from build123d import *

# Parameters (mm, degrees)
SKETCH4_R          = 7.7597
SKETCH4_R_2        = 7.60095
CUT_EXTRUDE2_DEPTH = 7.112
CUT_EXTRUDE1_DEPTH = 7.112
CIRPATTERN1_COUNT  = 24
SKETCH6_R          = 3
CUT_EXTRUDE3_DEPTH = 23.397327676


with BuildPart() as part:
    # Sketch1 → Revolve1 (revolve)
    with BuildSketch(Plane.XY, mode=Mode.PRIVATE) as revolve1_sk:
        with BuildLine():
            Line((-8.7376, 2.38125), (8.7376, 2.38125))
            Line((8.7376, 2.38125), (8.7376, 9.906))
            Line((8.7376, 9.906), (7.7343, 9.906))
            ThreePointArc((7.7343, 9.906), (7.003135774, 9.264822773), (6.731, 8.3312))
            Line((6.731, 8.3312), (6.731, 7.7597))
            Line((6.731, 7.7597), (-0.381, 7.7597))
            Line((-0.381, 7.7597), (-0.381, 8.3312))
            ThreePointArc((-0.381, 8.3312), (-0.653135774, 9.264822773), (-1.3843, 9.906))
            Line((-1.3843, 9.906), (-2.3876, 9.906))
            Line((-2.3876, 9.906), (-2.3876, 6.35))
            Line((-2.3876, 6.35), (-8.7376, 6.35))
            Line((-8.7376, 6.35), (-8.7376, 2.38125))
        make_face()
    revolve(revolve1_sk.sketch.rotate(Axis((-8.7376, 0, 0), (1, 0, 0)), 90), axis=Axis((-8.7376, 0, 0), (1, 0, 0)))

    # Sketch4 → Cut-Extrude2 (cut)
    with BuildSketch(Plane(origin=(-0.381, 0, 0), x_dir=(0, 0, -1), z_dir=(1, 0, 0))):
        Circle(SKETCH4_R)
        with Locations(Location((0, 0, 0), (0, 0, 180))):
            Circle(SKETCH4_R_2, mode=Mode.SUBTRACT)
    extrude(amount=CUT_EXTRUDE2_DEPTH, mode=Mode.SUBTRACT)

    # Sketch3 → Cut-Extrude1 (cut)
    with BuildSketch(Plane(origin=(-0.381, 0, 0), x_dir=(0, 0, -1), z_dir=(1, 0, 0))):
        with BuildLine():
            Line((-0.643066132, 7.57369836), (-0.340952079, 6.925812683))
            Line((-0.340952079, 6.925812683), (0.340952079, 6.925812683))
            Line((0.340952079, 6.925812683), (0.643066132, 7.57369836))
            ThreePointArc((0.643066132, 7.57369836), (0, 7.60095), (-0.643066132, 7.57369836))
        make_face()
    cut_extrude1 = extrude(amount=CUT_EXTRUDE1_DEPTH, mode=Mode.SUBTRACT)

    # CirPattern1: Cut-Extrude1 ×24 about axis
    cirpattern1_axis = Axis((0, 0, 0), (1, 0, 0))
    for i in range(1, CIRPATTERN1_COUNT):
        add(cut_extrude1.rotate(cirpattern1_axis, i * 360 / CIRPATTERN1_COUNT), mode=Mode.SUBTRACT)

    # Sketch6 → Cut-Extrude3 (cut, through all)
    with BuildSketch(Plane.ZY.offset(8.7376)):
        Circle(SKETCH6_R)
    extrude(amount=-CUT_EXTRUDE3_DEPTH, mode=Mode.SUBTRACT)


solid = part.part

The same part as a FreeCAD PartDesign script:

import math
import FreeCAD as App
import Part
import Sketcher

V = App.Vector
Q = App.Units.Quantity

doc = App.newDocument("Part")
body = doc.addObject("PartDesign::Body", "Body")

# Sketch on XY plane
sketch1 = doc.addObject("Sketcher::SketchObject", "Sketch")
body.addObject(sketch1)
sketch1.AttachmentSupport = (doc.XY_Plane, [""])
sketch1.MapMode = "FlatFace"
sketch1.addGeometry([
    Part.LineSegment(V(-8.7, 2.4, 0), V(8.7, 2.4, 0)),  # 0
    Part.LineSegment(V(8.7, 2.4, 0), V(8.7, 9.9, 0)),  # 1
    Part.LineSegment(V(8.7, 9.9, 0), V(7.7, 9.9, 0)),  # 2
    Part.ArcOfCircle(Part.Circle(V(8.5, 8.3, 0), V(0, 0, 1), 1.7), math.radians(115), math.radians(180)),  # 3
    Part.LineSegment(V(6.7, 8.3, 0), V(6.7, 7.8, 0)),  # 4
    Part.LineSegment(V(6.7, 7.8, 0), V(-0.4, 7.8, 0)),  # 5
    Part.LineSegment(V(-0.4, 7.8, 0), V(-0.4, 8.3, 0)),  # 6
    Part.ArcOfCircle(Part.Circle(V(-2.1, 8.3, 0), V(0, 0, 1), 1.7), math.radians(0), math.radians(65)),  # 7
    Part.LineSegment(V(-1.4, 9.9, 0), V(-2.4, 9.9, 0)),  # 8
    Part.LineSegment(V(-2.4, 9.9, 0), V(-2.4, 6.3, 0)),  # 9
    Part.LineSegment(V(-2.4, 6.3, 0), V(-8.7, 6.3, 0)),  # 10
    Part.LineSegment(V(-8.7, 6.3, 0), V(-8.7, 2.4, 0)),  # 11
], False)
sketch1.addConstraint([
    Sketcher.Constraint("Coincident", 0, 2, 1, 1),
    Sketcher.Constraint("Coincident", 1, 2, 2, 1),
    Sketcher.Constraint("Coincident", 2, 2, 3, 1),
    Sketcher.Constraint("Tangent", 3, 2, 4, 1),
    Sketcher.Constraint("Coincident", 4, 2, 5, 1),
    Sketcher.Constraint("Coincident", 5, 2, 6, 1),
    Sketcher.Constraint("Tangent", 6, 2, 7, 1),
    Sketcher.Constraint("Coincident", 7, 2, 8, 1),
    Sketcher.Constraint("Coincident", 8, 2, 9, 1),
    Sketcher.Constraint("Coincident", 9, 2, 10, 1),
    Sketcher.Constraint("Coincident", 10, 2, 11, 1),
    Sketcher.Constraint("Coincident", 11, 2, 0, 1),
    Sketcher.Constraint("Horizontal", 0),
    Sketcher.Constraint("Vertical", 1),
    Sketcher.Constraint("Horizontal", 2),
    Sketcher.Constraint("Vertical", 4),
    Sketcher.Constraint("Horizontal", 5),
    Sketcher.Constraint("Vertical", 6),
    Sketcher.Constraint("Horizontal", 8),
    Sketcher.Constraint("Vertical", 9),
    Sketcher.Constraint("Horizontal", 10),
    Sketcher.Constraint("Vertical", 11),
    Sketcher.Constraint("Equal", 3, 7),
    Sketcher.Constraint("Horizontal", 3, 3, 7, 3),
    Sketcher.Constraint("Horizontal", 2, 2, 7, 2),
    Sketcher.Constraint("Equal", 2, 8),
    Sketcher.Constraint("DistanceX", 5, 2, 5, 1, Q("0.28 in")),
    Sketcher.Constraint("DistanceX", 10, 2, 10, 1, Q("0.25 in")),
    Sketcher.Constraint("DistanceY", 9, 2, 9, 1, Q("0.14 in")),
    Sketcher.Constraint("DistanceX", 0, 1, 0, 2, Q("0.688 in")),
    Sketcher.Constraint("DistanceY", 11, 2, 11, 1, Q("0.15625 in")),
    Sketcher.Constraint("DistanceY", -1, 1, 1, 2, Q("0.39 in")),
    Sketcher.Constraint("DistanceX", 2, 2, 2, 1, Q("0.0395 in")),
    Sketcher.Constraint("DistanceY", 4, 2, 4, 1, Q("0.0225 in")),
    Sketcher.Constraint("DistanceY", -1, 1, 3, 3, Q("0.328 in")),
    Sketcher.Constraint("DistanceX", -1, 1, 0, 2, Q("0.344 in")),
])
revolution = doc.addObject("PartDesign::Revolution", "Revolution")
body.addObject(revolution)
revolution.Profile = sketch1
revolution.ReferenceAxis = (sketch1, ["H_Axis"])
revolution.Angle = 360

# Sketch on YZ plane
sketch2 = doc.addObject("Sketcher::SketchObject", "Sketch001")
body.addObject(sketch2)
sketch2.AttachmentSupport = (doc.YZ_Plane, [""])
sketch2.MapMode = "FlatFace"
sketch2.AttachmentOffset = App.Placement(V(0, 0, -0.015 * 25.4), App.Rotation())
sketch2.addGeometry([
    Part.Circle(V(0, 0, 0), V(0, 0, 1), 8),
    Part.Circle(V(0, 0, 0), V(0, 0, 1), 8),
], False)
sketch2.addConstraint([
    Sketcher.Constraint("Coincident", 0, 3, -1, 1),
    Sketcher.Constraint("Coincident", 1, 3, -1, 1),
    Sketcher.Constraint("Diameter", 0, Q("0.611 in")),
    Sketcher.Constraint("Diameter", 1, Q("0.5985 in")),
])
pocket1 = doc.addObject("PartDesign::Pocket", "Pocket")
body.addObject(pocket1)
pocket1.Profile = sketch2
pocket1.Length = Q("0.28 in")
pocket1.Reversed = True

# Sketch on YZ plane
sketch3 = doc.addObject("Sketcher::SketchObject", "Sketch002")
body.addObject(sketch3)
sketch3.AttachmentSupport = (doc.YZ_Plane, [""])
sketch3.MapMode = "FlatFace"
sketch3.AttachmentOffset = App.Placement(V(0, 0, -0.015 * 25.4), App.Rotation())
sketch3.addGeometry([
    Part.LineSegment(V(7.6, 0.6, 0), V(6.9, 0.3, 0)),
    Part.LineSegment(V(6.9, 0.3, 0), V(6.9, -0.3, 0)),
    Part.LineSegment(V(6.9, -0.3, 0), V(7.6, -0.6, 0)),
    Part.ArcOfCircle(Part.Circle(V(0, 0, 0), V(0, 0, 1), 7.6), math.radians(-4.85), math.radians(4.85)),
], False)
sketch3.addConstraint([
    Sketcher.Constraint("Coincident", 0, 2, 1, 1),
    Sketcher.Constraint("Coincident", 1, 2, 2, 1),
    Sketcher.Constraint("Coincident", 2, 2, 3, 1),
    Sketcher.Constraint("Coincident", 3, 2, 0, 1),
    Sketcher.Constraint("Vertical", 1),
    Sketcher.Constraint("Coincident", 3, 3, -1, 1),
    Sketcher.Constraint("Vertical", 2, 2, 3, 2),
    Sketcher.Constraint("Equal", 0, 2),
    Sketcher.Constraint("Angle", 0, Q("-155 deg")),
    Sketcher.Constraint("Radius", 3, Q("7.60095 mm")),
    Sketcher.Constraint("DistanceX", -1, 1, 2, 2, Q("7.573698 mm")),
    Sketcher.Constraint("DistanceY", 1, 2, 1, 1, Q("0.681904 mm")),
])
pocket2 = doc.addObject("PartDesign::Pocket", "Pocket001")
body.addObject(pocket2)
pocket2.Profile = sketch3
pocket2.Length = Q("0.28 in")
pocket2.Reversed = True
doc.recompute()

polarpattern = doc.addObject("PartDesign::PolarPattern", "PolarPattern")
body.addObject(polarpattern)
polarpattern.Originals = [pocket2]
polarpattern.Axis = (doc.X_Axis, [""])
polarpattern.Angle = 360
polarpattern.Occurrences = 24
body.Tip = polarpattern

# Sketch on YZ plane
sketch4 = doc.addObject("Sketcher::SketchObject", "Sketch003")
body.addObject(sketch4)
sketch4.AttachmentSupport = (doc.YZ_Plane, [""])
sketch4.MapMode = "FlatFace"
sketch4.AttachmentOffset = App.Placement(V(0, 0, -0.344 * 25.4), App.Rotation())
sketch4.addGeometry(Part.Circle(V(0, 0, 0), V(0, 0, 1), 3), False)
sketch4.addConstraint([
    Sketcher.Constraint("Coincident", 0, 3, -1, 1),
    Sketcher.Constraint("Diameter", 0, Q("6 mm")),
])
pocket3 = doc.addObject("PartDesign::Pocket", "Pocket002")
body.addObject(pocket3)
pocket3.Profile = sketch4
pocket3.Type = "ThroughAll"
pocket3.Reversed = True

doc.recompute()
